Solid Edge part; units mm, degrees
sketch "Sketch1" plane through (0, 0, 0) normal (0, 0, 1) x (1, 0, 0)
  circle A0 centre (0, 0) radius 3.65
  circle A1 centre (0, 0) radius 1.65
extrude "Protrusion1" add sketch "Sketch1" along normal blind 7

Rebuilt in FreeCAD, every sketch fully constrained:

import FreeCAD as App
import Part
import Sketcher

V = App.Vector

doc = App.newDocument("Part")
body = doc.addObject("PartDesign::Body", "Body")

# Sketch on XY plane
sketch1 = doc.addObject("Sketcher::SketchObject", "Sketch")
body.addObject(sketch1)
sketch1.AttachmentSupport = (doc.XY_Plane, [""])
sketch1.MapMode = "FlatFace"
sketch1.addGeometry([
    Part.Circle(V(0, 0, 0), V(0, 0, 1), 3.65),
    Part.Circle(V(0, 0, 0), V(0, 0, 1), 1.65),
], False)
sketch1.addConstraint([
    Sketcher.Constraint("Coincident", 0, 3, -1, 1),
    Sketcher.Constraint("Coincident", 1, 3, -1, 1),
    Sketcher.Constraint("Diameter", 0, 7.3),
    Sketcher.Constraint("Diameter", 1, 3.3),
])
pad1 = doc.addObject("PartDesign::Pad", "Pad")
body.addObject(pad1)
pad1.Profile = sketch1
pad1.Length = 7

doc.recompute()
